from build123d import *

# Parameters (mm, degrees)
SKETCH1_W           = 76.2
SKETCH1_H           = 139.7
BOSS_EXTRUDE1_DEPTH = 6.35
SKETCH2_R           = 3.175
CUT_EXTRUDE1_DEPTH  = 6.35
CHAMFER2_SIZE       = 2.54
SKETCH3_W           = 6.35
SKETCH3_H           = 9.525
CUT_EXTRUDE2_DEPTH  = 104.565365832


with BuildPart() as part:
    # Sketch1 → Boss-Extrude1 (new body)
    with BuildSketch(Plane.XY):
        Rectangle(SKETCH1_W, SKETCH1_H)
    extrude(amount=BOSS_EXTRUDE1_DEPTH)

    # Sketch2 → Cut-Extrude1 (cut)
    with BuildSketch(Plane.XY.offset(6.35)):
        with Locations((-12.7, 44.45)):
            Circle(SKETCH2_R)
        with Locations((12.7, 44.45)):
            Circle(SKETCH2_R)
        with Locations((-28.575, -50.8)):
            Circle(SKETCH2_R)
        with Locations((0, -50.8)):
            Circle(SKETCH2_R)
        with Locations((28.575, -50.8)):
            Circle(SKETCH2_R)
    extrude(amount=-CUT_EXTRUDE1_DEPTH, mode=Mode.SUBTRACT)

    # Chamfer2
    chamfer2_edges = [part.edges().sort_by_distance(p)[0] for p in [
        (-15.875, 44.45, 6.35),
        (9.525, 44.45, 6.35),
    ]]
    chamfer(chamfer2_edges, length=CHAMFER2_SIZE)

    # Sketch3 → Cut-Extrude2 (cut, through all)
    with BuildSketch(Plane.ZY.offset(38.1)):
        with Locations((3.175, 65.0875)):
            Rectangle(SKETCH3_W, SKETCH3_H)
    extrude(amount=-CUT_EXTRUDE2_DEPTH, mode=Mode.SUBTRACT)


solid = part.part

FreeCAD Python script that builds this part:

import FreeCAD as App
import Part
import Sketcher
Q = App.Units.Quantity


def edges_at(feature, points):
    """Names of the edges that pass closest to the given points."""
    edges = feature.Shape.Edges
    near = lambda p: min(range(len(edges)), key=lambda i: edges[i].distToShape(Part.Vertex(*p))[0])
    return sorted({f"Edge{near(p) + 1}" for p in points})

doc = App.newDocument("Part")
params = doc.addObject("Spreadsheet::Sheet", "Params")
for row, (alias, value) in enumerate([
    ("sketch1_width", "3 in"),
    ("sketch1_height", "5.5 in"),
    ("pad1_length", "0.25 in"),
    ("sketch2_diameter", "0.25 in"),
    ("pocket1_length", "0.25 in"),
    ("chamfer_size", "0.1 in"),
    ("sketch3_height", "0.25 in"),
    ("sketch3_width", "0.375 in"),
], start=1):
    params.set(f"A{row}", alias)
    params.set(f"B{row}", "=" + value)
    params.setAlias(f"B{row}", alias)

body = doc.addObject("PartDesign::Body", "Body")

# Sketch on XY plane
sketch1 = body.newObject("Sketcher::SketchObject", "Sketch")
sketch1.AttachmentSupport = (doc.getObject("XY_Plane"), [""])
sketch1.MapMode = "FlatFace"
sketch1.addGeometry([
    Part.LineSegment(App.Vector(-38.1, 69.85, 0), App.Vector(-38.1, -69.85, 0)),
    Part.LineSegment(App.Vector(-38.1, -69.85, 0), App.Vector(38.1, -69.85, 0)),
    Part.LineSegment(App.Vector(38.1, -69.85, 0), App.Vector(38.1, 69.85, 0)),
    Part.LineSegment(App.Vector(38.1, 69.85, 0), App.Vector(-38.1, 69.85, 0)),
], False)
sketch1.addConstraint([
    Sketcher.Constraint("Coincident", 0, 2, 1, 1),
    Sketcher.Constraint("Coincident", 1, 2, 2, 1),
    Sketcher.Constraint("Coincident", 2, 2, 3, 1),
    Sketcher.Constraint("Coincident", 3, 2, 0, 1),
    Sketcher.Constraint("Vertical", 0),
    Sketcher.Constraint("Horizontal", 1),
    Sketcher.Constraint("Vertical", 2),
    Sketcher.Constraint("Horizontal", 3),
    Sketcher.Constraint("Symmetric", 0, 2, 2, 2, -1, 1),
    Sketcher.Constraint("DistanceX", 1, 1, 1, 2, Q("3 in")),
    Sketcher.Constraint("DistanceY", 0, 2, 0, 1, Q("5.5 in")),
])
sketch1.setExpression("Constraints[9]", "Params.sketch1_width")
sketch1.setExpression("Constraints[10]", "Params.sketch1_height")
pad1 = body.newObject("PartDesign::Pad", "Pad")
pad1.Profile = sketch1
pad1.setExpression("Length", "Params.pad1_length")

# Sketch on XY plane
sketch2 = body.newObject("Sketcher::SketchObject", "Sketch001")
sketch2.AttachmentSupport = (doc.getObject("XY_Plane"), [""])
sketch2.MapMode = "FlatFace"
sketch2.AttachmentOffset = App.Placement(App.Vector(0, 0, 0.25 * 25.4), App.Rotation())
sketch2.addGeometry([
    Part.Circle(App.Vector(-12.7, 44.45, 0), App.Vector(0, 0, 1), 3.175),  # 0
    Part.Circle(App.Vector(12.7, 44.45, 0), App.Vector(0, 0, 1), 3.175),  # 1
    Part.Circle(App.Vector(-28.575, -50.8, 0), App.Vector(0, 0, 1), 3.175),  # 2
    Part.Circle(App.Vector(0, -50.8, 0), App.Vector(0, 0, 1), 3.175),  # 3
    Part.Circle(App.Vector(28.575, -50.8, 0), App.Vector(0, 0, 1), 3.175),  # 4
], False)
sketch2.addConstraint([
    Sketcher.Constraint("Equal", 0, 1),
    Sketcher.Constraint("Equal", 1, 2),
    Sketcher.Constraint("Equal", 2, 3),
    Sketcher.Constraint("Equal", 3, 4),
    Sketcher.Constraint("Symmetric", 0, 3, 1, 3, -2),
    Sketcher.Constraint("Symmetric", 2, 3, 4, 3, -2),
    Sketcher.Constraint("PointOnObject", 3, 3, -2),
    Sketcher.Constraint("Horizontal", 2, 3, 3, 3),
    Sketcher.Constraint("Diameter", 0, Q("0.25 in")),
    Sketcher.Constraint("DistanceY", 2, 3, -1, 1, Q("2 in")),
    Sketcher.Constraint("DistanceX", 0, 3, 1, 3, Q("1 in")),
    Sketcher.Constraint("DistanceY", -1, 1, 0, 3, Q("1.75 in")),
    Sketcher.Constraint("DistanceX", 2, 3, 4, 3, Q("2.25 in")),
])
sketch2.setExpression("Constraints[8]", "Params.sketch2_diameter")
pocket1 = body.newObject("PartDesign::Pocket", "Pocket")
pocket1.Profile = sketch2
pocket1.setExpression("Length", "Params.pocket1_length")
doc.recompute()

chamfer = body.newObject("PartDesign::Chamfer", "Chamfer")
chamfer.Base = (pocket1, edges_at(pocket1, [(-15.875, 44.45, 6.35), (9.525, 44.45, 6.35)]))
chamfer.setExpression("Size", "Params.chamfer_size")

# Sketch on YZ plane
sketch3 = body.newObject("Sketcher::SketchObject", "Sketch002")
sketch3.AttachmentSupport = (doc.getObject("YZ_Plane"), [""])
sketch3.MapMode = "FlatFace"
sketch3.AttachmentOffset = App.Placement(App.Vector(0, 0, -1.5 * 25.4), App.Rotation())
sketch3.addGeometry([
    Part.LineSegment(App.Vector(69.85, 0, 0), App.Vector(60.325, 0, 0)),
    Part.LineSegment(App.Vector(60.325, 0, 0), App.Vector(60.325, 6.35, 0)),
    Part.LineSegment(App.Vector(60.325, 6.35, 0), App.Vector(69.85, 6.35, 0)),
    Part.LineSegment(App.Vector(69.85, 6.35, 0), App.Vector(69.85, 0, 0)),
], False)
sketch3.addConstraint([
    Sketcher.Constraint("Coincident", 0, 2, 1, 1),
    Sketcher.Constraint("Coincident", 1, 2, 2, 1),
    Sketcher.Constraint("Coincident", 2, 2, 3, 1),
    Sketcher.Constraint("Coincident", 3, 2, 0, 1),
    Sketcher.Constraint("Horizontal", 0),
    Sketcher.Constraint("Vertical", 1),
    Sketcher.Constraint("Horizontal", 2),
    Sketcher.Constraint("Vertical", 3),
    Sketcher.Constraint("PointOnObject", 0, 2, -1),
    Sketcher.Constraint("DistanceY", 1, 1, 1, 2, Q("0.25 in")),
    Sketcher.Constraint("DistanceX", 0, 2, 0, 1, Q("0.375 in")),
    Sketcher.Constraint("DistanceX", -1, 1, 2, 2, Q("2.75 in")),
])
sketch3.setExpression("Constraints[9]", "Params.sketch3_height")
sketch3.setExpression("Constraints[10]", "Params.sketch3_width")
pocket2 = body.newObject("PartDesign::Pocket", "Pocket001")
pocket2.Profile = sketch3
pocket2.Type = "ThroughAll"
pocket2.Reversed = True

doc.recompute()
